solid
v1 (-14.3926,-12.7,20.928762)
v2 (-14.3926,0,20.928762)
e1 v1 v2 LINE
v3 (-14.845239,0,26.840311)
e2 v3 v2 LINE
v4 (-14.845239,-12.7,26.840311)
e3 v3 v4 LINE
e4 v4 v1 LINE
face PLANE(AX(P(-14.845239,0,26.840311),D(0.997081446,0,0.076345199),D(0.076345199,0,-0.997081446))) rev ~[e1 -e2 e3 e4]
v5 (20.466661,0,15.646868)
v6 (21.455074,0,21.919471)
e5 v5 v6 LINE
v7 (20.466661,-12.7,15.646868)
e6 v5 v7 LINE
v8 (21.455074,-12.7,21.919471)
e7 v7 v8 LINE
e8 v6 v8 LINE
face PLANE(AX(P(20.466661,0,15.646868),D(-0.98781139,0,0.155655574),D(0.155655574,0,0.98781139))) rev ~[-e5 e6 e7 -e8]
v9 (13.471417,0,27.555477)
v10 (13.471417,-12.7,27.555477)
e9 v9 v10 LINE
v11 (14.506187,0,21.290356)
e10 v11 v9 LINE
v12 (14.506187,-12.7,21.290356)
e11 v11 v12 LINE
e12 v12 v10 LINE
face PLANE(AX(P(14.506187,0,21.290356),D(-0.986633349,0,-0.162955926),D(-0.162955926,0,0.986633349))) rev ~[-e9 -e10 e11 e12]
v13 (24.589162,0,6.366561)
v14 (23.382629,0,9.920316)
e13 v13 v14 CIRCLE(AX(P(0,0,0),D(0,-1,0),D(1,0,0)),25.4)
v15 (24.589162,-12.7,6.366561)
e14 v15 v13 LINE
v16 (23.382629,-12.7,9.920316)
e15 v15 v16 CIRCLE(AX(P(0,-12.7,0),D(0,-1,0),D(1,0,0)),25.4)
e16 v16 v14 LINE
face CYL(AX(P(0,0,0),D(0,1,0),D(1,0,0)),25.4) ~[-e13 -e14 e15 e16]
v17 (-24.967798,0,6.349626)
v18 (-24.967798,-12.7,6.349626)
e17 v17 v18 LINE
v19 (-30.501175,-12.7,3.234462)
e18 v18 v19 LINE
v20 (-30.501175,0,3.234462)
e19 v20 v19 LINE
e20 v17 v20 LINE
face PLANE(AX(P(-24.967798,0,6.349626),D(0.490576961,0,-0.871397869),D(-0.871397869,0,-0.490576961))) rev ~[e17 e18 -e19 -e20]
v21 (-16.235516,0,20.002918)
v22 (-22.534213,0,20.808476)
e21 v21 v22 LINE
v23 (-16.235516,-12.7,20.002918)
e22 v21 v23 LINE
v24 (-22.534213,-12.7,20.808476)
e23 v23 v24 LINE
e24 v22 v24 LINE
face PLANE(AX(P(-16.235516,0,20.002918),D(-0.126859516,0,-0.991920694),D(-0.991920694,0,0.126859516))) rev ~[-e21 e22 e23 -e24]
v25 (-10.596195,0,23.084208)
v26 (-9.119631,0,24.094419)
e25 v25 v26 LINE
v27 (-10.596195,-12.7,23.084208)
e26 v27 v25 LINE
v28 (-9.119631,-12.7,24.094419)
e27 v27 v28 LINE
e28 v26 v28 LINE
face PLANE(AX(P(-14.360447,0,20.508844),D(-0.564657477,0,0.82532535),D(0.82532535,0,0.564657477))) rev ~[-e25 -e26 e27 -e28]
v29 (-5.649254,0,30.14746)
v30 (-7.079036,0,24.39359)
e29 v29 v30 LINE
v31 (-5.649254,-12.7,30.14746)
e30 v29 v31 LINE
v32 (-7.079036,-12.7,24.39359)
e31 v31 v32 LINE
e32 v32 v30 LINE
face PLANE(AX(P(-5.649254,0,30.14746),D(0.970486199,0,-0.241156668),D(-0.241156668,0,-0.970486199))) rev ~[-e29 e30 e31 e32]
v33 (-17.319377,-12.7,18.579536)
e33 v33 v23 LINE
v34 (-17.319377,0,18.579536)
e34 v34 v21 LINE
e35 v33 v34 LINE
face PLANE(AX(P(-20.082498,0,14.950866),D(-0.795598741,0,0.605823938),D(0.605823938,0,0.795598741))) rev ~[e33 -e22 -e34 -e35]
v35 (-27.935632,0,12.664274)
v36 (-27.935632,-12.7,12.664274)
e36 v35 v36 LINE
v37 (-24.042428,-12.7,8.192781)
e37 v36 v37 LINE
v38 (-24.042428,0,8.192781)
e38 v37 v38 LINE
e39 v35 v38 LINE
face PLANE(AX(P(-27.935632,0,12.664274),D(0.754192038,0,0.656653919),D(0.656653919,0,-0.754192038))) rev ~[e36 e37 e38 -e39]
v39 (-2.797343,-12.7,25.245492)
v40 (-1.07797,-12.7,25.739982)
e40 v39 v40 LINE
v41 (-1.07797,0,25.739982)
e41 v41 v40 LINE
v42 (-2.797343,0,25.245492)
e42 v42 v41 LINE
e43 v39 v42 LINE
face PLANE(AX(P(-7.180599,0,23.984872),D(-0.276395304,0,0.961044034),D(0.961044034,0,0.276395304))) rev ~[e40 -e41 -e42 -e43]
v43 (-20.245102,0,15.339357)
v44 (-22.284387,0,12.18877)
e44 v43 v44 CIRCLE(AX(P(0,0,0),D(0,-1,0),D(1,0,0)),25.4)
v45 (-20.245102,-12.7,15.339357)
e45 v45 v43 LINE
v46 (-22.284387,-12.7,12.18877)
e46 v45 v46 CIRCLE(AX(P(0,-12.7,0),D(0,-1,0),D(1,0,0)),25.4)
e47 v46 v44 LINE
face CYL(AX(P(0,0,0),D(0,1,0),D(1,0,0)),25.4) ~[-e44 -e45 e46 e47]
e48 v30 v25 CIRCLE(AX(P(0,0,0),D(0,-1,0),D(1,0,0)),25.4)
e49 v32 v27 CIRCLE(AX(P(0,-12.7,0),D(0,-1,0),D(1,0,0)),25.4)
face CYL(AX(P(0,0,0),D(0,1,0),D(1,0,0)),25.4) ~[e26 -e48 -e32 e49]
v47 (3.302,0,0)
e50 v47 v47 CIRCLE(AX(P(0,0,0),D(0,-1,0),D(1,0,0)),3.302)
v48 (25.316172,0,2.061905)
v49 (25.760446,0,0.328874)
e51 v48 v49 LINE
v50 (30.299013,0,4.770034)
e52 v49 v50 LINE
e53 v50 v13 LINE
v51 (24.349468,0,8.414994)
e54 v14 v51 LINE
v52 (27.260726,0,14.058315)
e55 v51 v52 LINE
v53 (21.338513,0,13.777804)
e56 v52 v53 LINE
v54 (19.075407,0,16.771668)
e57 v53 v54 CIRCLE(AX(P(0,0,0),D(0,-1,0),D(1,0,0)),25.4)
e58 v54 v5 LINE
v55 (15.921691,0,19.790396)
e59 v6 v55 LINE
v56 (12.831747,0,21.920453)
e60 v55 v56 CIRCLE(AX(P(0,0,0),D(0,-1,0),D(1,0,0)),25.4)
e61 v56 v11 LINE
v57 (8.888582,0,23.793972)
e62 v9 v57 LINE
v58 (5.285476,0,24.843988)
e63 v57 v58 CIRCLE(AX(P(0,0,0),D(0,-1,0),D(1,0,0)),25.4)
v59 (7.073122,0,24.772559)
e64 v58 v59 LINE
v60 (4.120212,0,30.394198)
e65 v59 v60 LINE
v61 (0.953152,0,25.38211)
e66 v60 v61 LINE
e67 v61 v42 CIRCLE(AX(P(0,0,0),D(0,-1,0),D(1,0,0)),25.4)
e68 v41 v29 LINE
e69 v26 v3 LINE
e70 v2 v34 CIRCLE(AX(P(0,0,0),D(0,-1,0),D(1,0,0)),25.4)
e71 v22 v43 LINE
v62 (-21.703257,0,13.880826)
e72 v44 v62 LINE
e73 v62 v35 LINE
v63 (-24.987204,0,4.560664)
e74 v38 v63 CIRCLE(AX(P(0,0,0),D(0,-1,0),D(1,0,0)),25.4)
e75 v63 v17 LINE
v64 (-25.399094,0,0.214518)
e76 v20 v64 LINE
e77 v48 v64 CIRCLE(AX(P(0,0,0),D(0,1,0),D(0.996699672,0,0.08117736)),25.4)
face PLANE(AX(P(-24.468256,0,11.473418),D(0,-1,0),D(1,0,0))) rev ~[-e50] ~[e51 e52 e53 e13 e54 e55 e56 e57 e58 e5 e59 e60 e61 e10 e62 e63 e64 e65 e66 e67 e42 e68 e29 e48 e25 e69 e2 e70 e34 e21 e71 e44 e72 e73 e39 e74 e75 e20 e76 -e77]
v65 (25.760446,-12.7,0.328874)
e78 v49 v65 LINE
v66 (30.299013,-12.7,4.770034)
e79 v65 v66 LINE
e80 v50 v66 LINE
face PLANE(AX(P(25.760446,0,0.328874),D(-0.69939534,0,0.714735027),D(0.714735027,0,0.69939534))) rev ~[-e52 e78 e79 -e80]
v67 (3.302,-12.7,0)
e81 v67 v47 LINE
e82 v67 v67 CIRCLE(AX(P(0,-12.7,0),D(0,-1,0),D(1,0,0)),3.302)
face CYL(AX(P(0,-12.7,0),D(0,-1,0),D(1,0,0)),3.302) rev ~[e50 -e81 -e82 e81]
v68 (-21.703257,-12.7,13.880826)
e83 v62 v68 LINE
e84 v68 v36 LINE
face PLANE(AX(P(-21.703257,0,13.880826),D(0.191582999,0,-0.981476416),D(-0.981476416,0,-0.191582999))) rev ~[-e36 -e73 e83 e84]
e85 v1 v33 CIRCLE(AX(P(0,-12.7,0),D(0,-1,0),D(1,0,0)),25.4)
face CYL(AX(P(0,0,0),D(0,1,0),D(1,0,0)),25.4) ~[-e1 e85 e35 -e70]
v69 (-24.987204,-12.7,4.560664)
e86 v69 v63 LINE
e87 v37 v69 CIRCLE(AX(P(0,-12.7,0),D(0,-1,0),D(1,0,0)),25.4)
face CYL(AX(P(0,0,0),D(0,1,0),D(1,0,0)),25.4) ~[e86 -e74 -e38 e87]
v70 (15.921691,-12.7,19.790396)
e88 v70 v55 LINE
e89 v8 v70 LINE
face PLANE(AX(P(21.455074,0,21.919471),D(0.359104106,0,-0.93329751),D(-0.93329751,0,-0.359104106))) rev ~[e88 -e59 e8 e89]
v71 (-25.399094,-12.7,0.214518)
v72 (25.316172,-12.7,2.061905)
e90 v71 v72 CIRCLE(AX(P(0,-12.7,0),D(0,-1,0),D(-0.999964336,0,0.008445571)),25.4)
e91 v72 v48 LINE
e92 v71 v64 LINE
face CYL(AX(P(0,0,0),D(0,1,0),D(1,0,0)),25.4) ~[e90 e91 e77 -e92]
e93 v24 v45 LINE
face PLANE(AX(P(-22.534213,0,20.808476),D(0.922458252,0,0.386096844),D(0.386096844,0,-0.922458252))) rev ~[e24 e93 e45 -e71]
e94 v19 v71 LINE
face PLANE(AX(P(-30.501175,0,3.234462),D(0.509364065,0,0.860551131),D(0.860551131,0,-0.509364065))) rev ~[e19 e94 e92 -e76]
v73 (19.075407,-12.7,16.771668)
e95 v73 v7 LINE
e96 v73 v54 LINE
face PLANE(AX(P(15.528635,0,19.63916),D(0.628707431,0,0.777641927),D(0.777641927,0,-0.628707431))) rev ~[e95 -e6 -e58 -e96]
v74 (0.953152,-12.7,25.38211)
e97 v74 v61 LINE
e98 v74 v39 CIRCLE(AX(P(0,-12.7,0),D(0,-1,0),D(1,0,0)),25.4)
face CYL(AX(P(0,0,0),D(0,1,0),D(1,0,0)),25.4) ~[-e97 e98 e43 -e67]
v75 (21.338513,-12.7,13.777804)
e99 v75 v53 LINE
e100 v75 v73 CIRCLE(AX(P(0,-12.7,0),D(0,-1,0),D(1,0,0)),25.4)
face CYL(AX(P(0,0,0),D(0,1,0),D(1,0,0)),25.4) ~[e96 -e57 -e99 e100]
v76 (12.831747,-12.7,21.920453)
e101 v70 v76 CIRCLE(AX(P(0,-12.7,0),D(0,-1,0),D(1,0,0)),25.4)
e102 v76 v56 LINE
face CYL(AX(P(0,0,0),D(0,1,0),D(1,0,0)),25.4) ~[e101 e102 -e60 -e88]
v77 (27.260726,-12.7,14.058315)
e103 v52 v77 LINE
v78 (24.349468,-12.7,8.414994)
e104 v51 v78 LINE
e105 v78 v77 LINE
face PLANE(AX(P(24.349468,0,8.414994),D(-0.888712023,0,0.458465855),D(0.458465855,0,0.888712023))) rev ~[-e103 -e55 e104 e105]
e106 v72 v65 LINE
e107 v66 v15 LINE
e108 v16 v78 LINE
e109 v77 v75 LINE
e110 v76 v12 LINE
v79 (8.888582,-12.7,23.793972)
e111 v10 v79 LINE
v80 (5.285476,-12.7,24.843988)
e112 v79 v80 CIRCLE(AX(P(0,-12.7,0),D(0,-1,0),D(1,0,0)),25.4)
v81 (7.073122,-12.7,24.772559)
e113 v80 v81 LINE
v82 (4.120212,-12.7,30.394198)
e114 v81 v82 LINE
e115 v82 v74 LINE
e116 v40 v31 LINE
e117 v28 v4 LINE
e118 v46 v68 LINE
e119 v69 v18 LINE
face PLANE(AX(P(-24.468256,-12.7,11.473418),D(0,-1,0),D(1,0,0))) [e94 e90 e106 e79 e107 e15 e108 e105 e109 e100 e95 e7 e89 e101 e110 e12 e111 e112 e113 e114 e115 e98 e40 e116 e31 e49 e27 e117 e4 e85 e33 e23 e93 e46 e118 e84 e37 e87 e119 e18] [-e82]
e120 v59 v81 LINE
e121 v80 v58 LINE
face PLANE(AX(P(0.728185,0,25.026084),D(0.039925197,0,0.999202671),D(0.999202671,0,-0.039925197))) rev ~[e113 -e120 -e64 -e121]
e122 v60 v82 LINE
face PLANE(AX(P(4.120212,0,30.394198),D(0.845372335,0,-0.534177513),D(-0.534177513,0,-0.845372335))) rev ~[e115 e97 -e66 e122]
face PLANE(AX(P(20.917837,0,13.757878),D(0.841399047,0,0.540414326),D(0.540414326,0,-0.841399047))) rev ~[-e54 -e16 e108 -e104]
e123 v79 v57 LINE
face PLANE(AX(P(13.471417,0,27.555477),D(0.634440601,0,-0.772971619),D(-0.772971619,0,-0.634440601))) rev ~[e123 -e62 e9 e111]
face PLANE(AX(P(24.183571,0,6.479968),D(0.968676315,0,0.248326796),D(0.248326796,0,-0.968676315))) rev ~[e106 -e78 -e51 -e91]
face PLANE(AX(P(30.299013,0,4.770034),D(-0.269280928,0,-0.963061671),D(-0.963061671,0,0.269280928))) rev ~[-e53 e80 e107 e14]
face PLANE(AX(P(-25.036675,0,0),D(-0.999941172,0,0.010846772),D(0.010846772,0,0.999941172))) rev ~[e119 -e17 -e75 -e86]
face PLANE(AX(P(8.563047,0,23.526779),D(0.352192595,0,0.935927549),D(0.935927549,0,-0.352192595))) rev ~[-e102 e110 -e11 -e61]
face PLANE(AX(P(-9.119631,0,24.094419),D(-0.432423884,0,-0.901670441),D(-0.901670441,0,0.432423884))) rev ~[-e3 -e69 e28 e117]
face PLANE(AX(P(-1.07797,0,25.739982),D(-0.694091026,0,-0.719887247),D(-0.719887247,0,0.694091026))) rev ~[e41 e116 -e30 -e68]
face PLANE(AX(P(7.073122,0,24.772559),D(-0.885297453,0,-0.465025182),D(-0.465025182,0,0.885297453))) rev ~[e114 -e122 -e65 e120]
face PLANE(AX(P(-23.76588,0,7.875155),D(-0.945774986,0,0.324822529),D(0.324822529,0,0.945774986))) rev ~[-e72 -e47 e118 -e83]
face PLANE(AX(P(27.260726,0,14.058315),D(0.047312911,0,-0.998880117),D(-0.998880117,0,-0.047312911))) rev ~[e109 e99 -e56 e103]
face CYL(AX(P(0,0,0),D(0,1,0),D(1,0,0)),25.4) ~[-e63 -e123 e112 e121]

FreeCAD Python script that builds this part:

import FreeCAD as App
import Part
import Sketcher
Q = App.Units.Quantity

doc = App.newDocument("Part")
params = doc.addObject("Spreadsheet::Sheet", "Params")
for row, (alias, value) in enumerate([
    ("sketch1_diameter", "2 in"),
    ("pad1_length", "0.5 in"),
    ("sketch2_length", "0.25 in"),
    ("pad2_length", "0.5 in"),
    ("sketch3_diameter", "0.26 in"),
    ("pocket1_length", "0.5 in"),
], start=1):
    params.set(f"A{row}", alias)
    params.set(f"B{row}", "=" + value)
    params.setAlias(f"B{row}", alias)

body = doc.addObject("PartDesign::Body", "Body")

sketch1 = doc.addObject("Sketcher::SketchObject", "Sketch")
body.addObject(sketch1)
sketch1.AttachmentSupport = (doc.XZ_Plane, [""])
sketch1.MapMode = "FlatFace"
sketch1.addGeometry(Part.Circle(App.Vector(0, 0, 0), App.Vector(0, 0, 1), 25.4), False)
sketch1.addConstraint([
    Sketcher.Constraint("Coincident", 0, 3, -1, 1),
    Sketcher.Constraint("Diameter", 0, Q("2 in")),
])
sketch1.setExpression("Constraints[1]", "Params.sketch1_diameter")
pad1 = doc.addObject("PartDesign::Pad", "Pad")
body.addObject(pad1)
pad1.Profile = sketch1
pad1.setExpression("Length", "Params.pad1_length")

sketch2 = doc.addObject("Sketcher::SketchObject", "Sketch001")
body.addObject(sketch2)
sketch2.AttachmentSupport = (doc.XZ_Plane, [""])
sketch2.MapMode = "FlatFace"
sketch2.addGeometry([
    Part.LineSegment(App.Vector(-21.703257, 13.880826, 0), App.Vector(-27.935632, 12.664274, 0)),
    Part.LineSegment(App.Vector(-27.935632, 12.664274, 0), App.Vector(-23.76588, 7.875155, 0)),
    Part.LineSegment(App.Vector(-23.76588, 7.875155, 0), App.Vector(-21.703257, 13.880826, 0)),
    Part.LineSegment(App.Vector(-30.501175, 3.234462, 0), App.Vector(-25.036675, 0, 0)),
    Part.LineSegment(App.Vector(-25.036675, 0, 0), App.Vector(-24.967798, 6.349626, 0)),
    Part.LineSegment(App.Vector(-24.967798, 6.349626, 0), App.Vector(-30.501175, 3.234462, 0)),
    Part.LineSegment(App.Vector(-16.235516, 20.002918, 0), App.Vector(-22.534213, 20.808476, 0)),
    Part.LineSegment(App.Vector(-22.534213, 20.808476, 0), App.Vector(-20.082498, 14.950866, 0)),
    Part.LineSegment(App.Vector(-20.082498, 14.950866, 0), App.Vector(-16.235516, 20.002918, 0)),
    Part.LineSegment(App.Vector(-9.119631, 24.094419, 0), App.Vector(-14.845239, 26.840311, 0)),
    Part.LineSegment(App.Vector(-14.845239, 26.840311, 0), App.Vector(-14.360447, 20.508844, 0)),
    Part.LineSegment(App.Vector(-14.360447, 20.508844, 0), App.Vector(-9.119631, 24.094419, 0)),
    Part.LineSegment(App.Vector(-1.07797, 25.739982, 0), App.Vector(-5.649254, 30.14746, 0)),
    Part.LineSegment(App.Vector(-5.649254, 30.14746, 0), App.Vector(-7.180599, 23.984872, 0)),
    Part.LineSegment(App.Vector(-7.180599, 23.984872, 0), App.Vector(-1.07797, 25.739982, 0)),
    Part.LineSegment(App.Vector(7.073122, 24.772559, 0), App.Vector(4.120212, 30.394198, 0)),
    Part.LineSegment(App.Vector(4.120212, 30.394198, 0), App.Vector(0.728185, 25.026084, 0)),
    Part.LineSegment(App.Vector(0.728185, 25.026084, 0), App.Vector(7.073122, 24.772559, 0)),
    Part.LineSegment(App.Vector(14.506187, 21.290356, 0), App.Vector(13.471417, 27.555477, 0)),
    Part.LineSegment(App.Vector(13.471417, 27.555477, 0), App.Vector(8.563047, 23.526779, 0)),
    Part.LineSegment(App.Vector(8.563047, 23.526779, 0), App.Vector(14.506187, 21.290356, 0)),
    Part.LineSegment(App.Vector(20.466661, 15.646868, 0), App.Vector(21.455074, 21.919471, 0)),
    Part.LineSegment(App.Vector(21.455074, 21.919471, 0), App.Vector(15.528635, 19.63916, 0)),
    Part.LineSegment(App.Vector(15.528635, 19.63916, 0), App.Vector(20.466661, 15.646868, 0)),
    Part.LineSegment(App.Vector(24.349468, 8.414994, 0), App.Vector(27.260726, 14.058315, 0)),
    Part.LineSegment(App.Vector(27.260726, 14.058315, 0), App.Vector(20.917837, 13.757878, 0)),
    Part.LineSegment(App.Vector(20.917837, 13.757878, 0), App.Vector(24.349468, 8.414994, 0)),
    Part.LineSegment(App.Vector(25.760446, 0.328874, 0), App.Vector(30.299013, 4.770034, 0)),
    Part.LineSegment(App.Vector(30.299013, 4.770034, 0), App.Vector(24.183571, 6.479968, 0)),
    Part.LineSegment(App.Vector(24.183571, 6.479968, 0), App.Vector(25.760446, 0.328874, 0)),
], False)
sketch2.addConstraint([
    Sketcher.Constraint("Coincident", 0, 2, 1, 1),
    Sketcher.Constraint("Coincident", 1, 2, 2, 1),
    Sketcher.Constraint("Coincident", 2, 2, 0, 1),
    Sketcher.Constraint("Coincident", 3, 2, 4, 1),
    Sketcher.Constraint("Coincident", 4, 2, 5, 1),
    Sketcher.Constraint("Coincident", 5, 2, 3, 1),
    Sketcher.Constraint("Coincident", 6, 2, 7, 1),
    Sketcher.Constraint("Coincident", 7, 2, 8, 1),
    Sketcher.Constraint("Coincident", 8, 2, 6, 1),
    Sketcher.Constraint("Coincident", 9, 2, 10, 1),
    Sketcher.Constraint("Coincident", 10, 2, 11, 1),
    Sketcher.Constraint("Coincident", 11, 2, 9, 1),
    Sketcher.Constraint("Coincident", 12, 2, 13, 1),
    Sketcher.Constraint("Coincident", 13, 2, 14, 1),
    Sketcher.Constraint("Coincident", 14, 2, 12, 1),
    Sketcher.Constraint("Coincident", 15, 2, 16, 1),
    Sketcher.Constraint("Coincident", 16, 2, 17, 1),
    Sketcher.Constraint("Coincident", 17, 2, 15, 1),
    Sketcher.Constraint("Coincident", 18, 2, 19, 1),
    Sketcher.Constraint("Coincident", 19, 2, 20, 1),
    Sketcher.Constraint("Coincident", 20, 2, 18, 1),
    Sketcher.Constraint("Coincident", 21, 2, 22, 1),
    Sketcher.Constraint("Coincident", 22, 2, 23, 1),
    Sketcher.Constraint("Coincident", 23, 2, 21, 1),
    Sketcher.Constraint("Coincident", 24, 2, 25, 1),
    Sketcher.Constraint("Coincident", 25, 2, 26, 1),
    Sketcher.Constraint("Coincident", 26, 2, 24, 1),
    Sketcher.Constraint("Coincident", 27, 2, 28, 1),
    Sketcher.Constraint("Coincident", 28, 2, 29, 1),
    Sketcher.Constraint("Coincident", 29, 2, 27, 1),
    Sketcher.Constraint("PointOnObject", 3, 2, -1),
    Sketcher.Constraint("Equal", 0, 1),
    Sketcher.Constraint("Equal", 1, 2),
    Sketcher.Constraint("Equal", 2, 3),
    Sketcher.Constraint("Equal", 3, 4),
    Sketcher.Constraint("Equal", 4, 5),
    Sketcher.Constraint("Equal", 5, 6),
    Sketcher.Constraint("Equal", 6, 7),
    Sketcher.Constraint("Equal", 7, 8),
    Sketcher.Constraint("Equal", 8, 9),
    Sketcher.Constraint("Equal", 9, 10),
    Sketcher.Constraint("Equal", 10, 11),
    Sketcher.Constraint("Equal", 11, 12),
    Sketcher.Constraint("Equal", 12, 13),
    Sketcher.Constraint("Equal", 13, 14),
    Sketcher.Constraint("Equal", 14, 15),
    Sketcher.Constraint("Equal", 15, 16),
    Sketcher.Constraint("Equal", 16, 17),
    Sketcher.Constraint("Equal", 17, 18),
    Sketcher.Constraint("Equal", 18, 19),
    Sketcher.Constraint("Equal", 19, 20),
    Sketcher.Constraint("Equal", 20, 21),
    Sketcher.Constraint("Equal", 21, 22),
    Sketcher.Constraint("Equal", 22, 23),
    Sketcher.Constraint("Equal", 23, 24),
    Sketcher.Constraint("Equal", 24, 25),
    Sketcher.Constraint("Equal", 25, 26),
    Sketcher.Constraint("Equal", 26, 27),
    Sketcher.Constraint("Equal", 27, 28),
    Sketcher.Constraint("Equal", 28, 29),
    Sketcher.Constraint("Distance", 0, Q("0.25 in")),
    Sketcher.Constraint("DistanceX", 7, 2, -1, 1, Q("20.082498 mm")),
    Sketcher.Constraint("DistanceX", 13, 2, -1, 1, Q("7.180599 mm")),
    Sketcher.Constraint("DistanceY", 4, 2, 2, 2, Q("7.5312 mm")),
    Sketcher.Constraint("DistanceX", 5, 2, 3, 2, Q("5.4645 mm")),
    Sketcher.Constraint("DistanceY", 0, 2, 6, 2, Q("8.144202 mm")),
    Sketcher.Constraint("DistanceX", 4, 2, 7, 2, Q("4.8853 mm")),
    Sketcher.Constraint("DistanceY", 8, 2, 11, 2, Q("4.091501 mm")),
    Sketcher.Constraint("DistanceY", 16, 2, 14, 2, Q("0.713898 mm")),
    Sketcher.Constraint("DistanceY", 17, 2, 12, 2, Q("5.374901 mm")),
    Sketcher.Constraint("DistanceY", 22, 2, 17, 2, Q("5.133399 mm")),
    Sketcher.Constraint("DistanceX", 22, 2, 25, 2, Q("5.389202 mm")),
    Sketcher.Constraint("DistanceY", 28, 2, 23, 2, Q("9.1669 mm")),
    Sketcher.Constraint("DistanceX", 0, 2, -1, 1, Q("27.935632 mm")),
    Sketcher.Constraint("DistanceX", 1, 2, -1, 1, Q("23.76588 mm")),
    Sketcher.Constraint("DistanceY", -1, 1, 8, 2, Q("20.002918 mm")),
    Sketcher.Constraint("DistanceX", 9, 2, -1, 1, Q("14.845239 mm")),
    Sketcher.Constraint("DistanceY", -1, 1, 9, 2, Q("26.840311 mm")),
    Sketcher.Constraint("DistanceY", -1, 1, 12, 2, Q("30.14746 mm")),
    Sketcher.Constraint("DistanceY", -1, 1, 13, 2, Q("23.984872 mm")),
    Sketcher.Constraint("DistanceX", -1, 1, 17, 2, Q("7.073122 mm")),
    Sketcher.Constraint("DistanceY", -1, 1, 19, 2, Q("23.526779 mm")),
    Sketcher.Constraint("DistanceY", -1, 1, 21, 2, Q("21.919471 mm")),
    Sketcher.Constraint("DistanceX", -1, 1, 23, 2, Q("20.466661 mm")),
    Sketcher.Constraint("DistanceX", -1, 1, 26, 2, Q("24.349468 mm")),
    Sketcher.Constraint("DistanceX", -1, 1, 28, 2, Q("24.183571 mm")),
    Sketcher.Constraint("DistanceY", 18, 2, 15, 2, Q("2.838721 mm")),
    Sketcher.Constraint("DistanceX", 12, 2, 18, 2, Q("19.120671 mm")),
    Sketcher.Constraint("DistanceY", 24, 2, 20, 2, Q("7.232041 mm")),
    Sketcher.Constraint("DistanceY", 27, 2, 26, 2, Q("3.64496 mm")),
])
sketch2.setExpression("Constraints[60]", "Params.sketch2_length")
pad2 = doc.addObject("PartDesign::Pad", "Pad001")
body.addObject(pad2)
pad2.Profile = sketch2
pad2.setExpression("Length", "Params.pad2_length")

sketch3 = doc.addObject("Sketcher::SketchObject", "Sketch002")
body.addObject(sketch3)
sketch3.AttachmentSupport = (doc.XZ_Plane, [""])
sketch3.MapMode = "FlatFace"
sketch3.AttachmentOffset = App.Placement(App.Vector(0, 0, 0.5 * 25.4), App.Rotation())
sketch3.addGeometry(Part.Circle(App.Vector(0, 0, 0), App.Vector(0, 0, 1), 3.302), False)
sketch3.addConstraint([
    Sketcher.Constraint("Coincident", 0, 3, -1, 1),
    Sketcher.Constraint("Diameter", 0, Q("0.26 in")),
])
sketch3.setExpression("Constraints[1]", "Params.sketch3_diameter")
pocket1 = doc.addObject("PartDesign::Pocket", "Pocket")
body.addObject(pocket1)
pocket1.Profile = sketch3
pocket1.setExpression("Length", "Params.pocket1_length")

doc.recompute()
